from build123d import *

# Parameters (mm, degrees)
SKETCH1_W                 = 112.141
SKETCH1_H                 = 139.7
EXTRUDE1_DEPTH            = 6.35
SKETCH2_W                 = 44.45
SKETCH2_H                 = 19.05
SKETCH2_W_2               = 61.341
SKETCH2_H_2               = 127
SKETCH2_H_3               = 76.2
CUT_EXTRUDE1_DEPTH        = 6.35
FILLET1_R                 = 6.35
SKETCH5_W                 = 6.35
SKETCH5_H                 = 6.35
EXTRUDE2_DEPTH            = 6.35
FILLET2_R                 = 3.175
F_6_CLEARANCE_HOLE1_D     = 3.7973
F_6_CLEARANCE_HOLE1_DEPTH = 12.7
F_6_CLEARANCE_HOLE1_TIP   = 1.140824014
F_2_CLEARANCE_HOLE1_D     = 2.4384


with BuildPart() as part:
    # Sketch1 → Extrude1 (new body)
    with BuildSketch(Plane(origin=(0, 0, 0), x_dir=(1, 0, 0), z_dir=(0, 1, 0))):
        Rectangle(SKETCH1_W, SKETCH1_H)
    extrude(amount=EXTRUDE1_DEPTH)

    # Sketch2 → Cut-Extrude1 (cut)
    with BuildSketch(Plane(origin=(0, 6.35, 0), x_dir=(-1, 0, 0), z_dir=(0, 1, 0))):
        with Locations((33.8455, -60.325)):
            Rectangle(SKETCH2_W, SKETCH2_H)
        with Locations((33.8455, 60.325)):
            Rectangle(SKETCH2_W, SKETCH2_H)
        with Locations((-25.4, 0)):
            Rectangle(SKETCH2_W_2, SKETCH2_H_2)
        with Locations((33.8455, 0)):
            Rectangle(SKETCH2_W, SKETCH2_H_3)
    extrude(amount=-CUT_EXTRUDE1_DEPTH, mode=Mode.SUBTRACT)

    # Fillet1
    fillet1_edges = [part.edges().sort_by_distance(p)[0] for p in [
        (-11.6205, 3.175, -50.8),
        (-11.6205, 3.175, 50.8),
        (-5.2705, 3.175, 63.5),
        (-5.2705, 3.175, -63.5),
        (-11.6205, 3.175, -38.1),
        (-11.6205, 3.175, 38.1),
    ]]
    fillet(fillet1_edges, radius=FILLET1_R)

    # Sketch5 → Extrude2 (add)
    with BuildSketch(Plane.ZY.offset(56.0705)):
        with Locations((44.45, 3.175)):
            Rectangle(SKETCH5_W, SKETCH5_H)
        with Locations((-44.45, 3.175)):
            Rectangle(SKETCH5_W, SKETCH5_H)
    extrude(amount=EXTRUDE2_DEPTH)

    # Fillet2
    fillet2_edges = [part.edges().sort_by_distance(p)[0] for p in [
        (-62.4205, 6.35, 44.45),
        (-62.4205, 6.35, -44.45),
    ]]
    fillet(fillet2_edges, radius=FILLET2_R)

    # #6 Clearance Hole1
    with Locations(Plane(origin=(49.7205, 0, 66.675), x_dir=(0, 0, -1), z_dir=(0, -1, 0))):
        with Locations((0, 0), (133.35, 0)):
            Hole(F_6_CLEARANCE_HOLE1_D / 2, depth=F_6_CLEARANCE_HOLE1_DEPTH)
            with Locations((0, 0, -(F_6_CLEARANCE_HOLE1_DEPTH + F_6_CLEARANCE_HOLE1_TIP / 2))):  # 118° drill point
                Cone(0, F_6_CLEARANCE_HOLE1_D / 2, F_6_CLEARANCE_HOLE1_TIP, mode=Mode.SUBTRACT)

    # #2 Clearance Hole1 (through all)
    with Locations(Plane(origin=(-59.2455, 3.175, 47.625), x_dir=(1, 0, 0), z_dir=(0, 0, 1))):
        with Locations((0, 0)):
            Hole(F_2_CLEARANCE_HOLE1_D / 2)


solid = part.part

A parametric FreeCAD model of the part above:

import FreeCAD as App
import Part
import Sketcher
from FreeCAD import Vector
Q = App.Units.Quantity


def edges_at(feature, points):
    """Names of the edges that pass closest to the given points."""
    edges = feature.Shape.Edges
    near = lambda p: min(range(len(edges)), key=lambda i: edges[i].distToShape(Part.Vertex(*p))[0])
    return sorted({f"Edge{near(p) + 1}" for p in points})


def add_polygon(sketch, points):
    """Adds a closed chain of lines whose ends are joined by coincident constraints."""
    first, n = sketch.GeometryCount, len(points)
    for a, b in zip(points, points[1:] + points[:1]):
        sketch.addGeometry(Part.LineSegment(App.Vector(*a, 0), App.Vector(*b, 0)), False)
    for i in range(n):
        sketch.addConstraint(Sketcher.Constraint("Coincident", first + i, 2, first + (i + 1) % n, 1))

doc = App.newDocument("Part")
params = doc.addObject("Spreadsheet::Sheet", "Params")
for row, (alias, value) in enumerate([
    ("sketch1_height", "5.5 in"),
    ("sketch1_width", "4.415 in"),
    ("pad1_length", "0.25 in"),
    ("sketch2_height", "5 in"),
    ("sketch2_height2", "3 in"),
    ("sketch2_width", "1.75 in"),
    ("sketch2_height3", "0.75 in"),
    ("sketch2_width2", "2.415 in"),
    ("pocket1_length", "0.25 in"),
    ("fillet_radius", "0.25 in"),
    ("sketch3_width", "0.25 in"),
    ("pad2_length", "0.25 in"),
    ("fillet2_radius", "0.125 in"),
    ("hole_diameter", "0.1495 in"),
    ("hole_depth", "0.5 in"),
    ("sketch5_diameter", "0.096 in"),
    ("hole2_diameter", "0.096 in"),
], start=1):
    params.set(f"A{row}", alias)
    params.set(f"B{row}", "=" + value)
    params.setAlias(f"B{row}", alias)

body = doc.addObject("PartDesign::Body", "Body")

sketch1 = body.newObject("Sketcher::SketchObject", "Sketch")
sketch1.AttachmentSupport = (doc.getObject("XZ_Plane"), [""])
sketch1.MapMode = "FlatFace"
add_polygon(sketch1, [(-56, -70), (-56, 70), (56, 70), (56, -70)])
sketch1.addConstraint([
    Sketcher.Constraint("Vertical", 0),
    Sketcher.Constraint("Horizontal", 1),
    Sketcher.Constraint("Vertical", 2),
    Sketcher.Constraint("Horizontal", 3),
    Sketcher.Constraint("Symmetric", 0, 2, 2, 2, -1, 1),
    Sketcher.Constraint("DistanceY", 0, 1, 0, 2, Q("5.5 in")),
    Sketcher.Constraint("DistanceX", 1, 1, 1, 2, Q("4.415 in")),
])
sketch1.setExpression("Constraints[9]", "Params.sketch1_height")
sketch1.setExpression("Constraints[10]", "Params.sketch1_width")
pad1 = body.newObject("PartDesign::Pad", "Pad")
pad1.Profile = sketch1
pad1.setExpression("Length", "Params.pad1_length")
pad1.Reversed = True

sketch2 = body.newObject("Sketcher::SketchObject", "Sketch001")
sketch2.AttachmentSupport = (doc.getObject("XZ_Plane"), [""])
sketch2.MapMode = "FlatFace"
sketch2.AttachmentOffset = App.Placement(Vector(0, 0, -0.25 * 25.4), App.Rotation())
add_polygon(sketch2, [(-12, -51), (-12, -70), (-56, -70), (-56, -51)])
add_polygon(sketch2, [(-12, 70), (-12, 51), (-56, 51), (-56, 70)])
add_polygon(sketch2, [(56, 64), (56, -64), (-5, -64), (-5, 64)])
add_polygon(sketch2, [(-12, 38), (-12, -38), (-56, -38), (-56, 38)])
sketch2.addConstraint([
    Sketcher.Constraint("Vertical", 0),
    Sketcher.Constraint("Horizontal", 1),
    Sketcher.Constraint("Vertical", 2),
    Sketcher.Constraint("Horizontal", 3),
    Sketcher.Constraint("Vertical", 4),
    Sketcher.Constraint("Horizontal", 5),
    Sketcher.Constraint("Vertical", 6),
    Sketcher.Constraint("Horizontal", 7),
    Sketcher.Constraint("Vertical", 8),
    Sketcher.Constraint("Horizontal", 9),
    Sketcher.Constraint("Vertical", 10),
    Sketcher.Constraint("Horizontal", 11),
    Sketcher.Constraint("Vertical", 12),
    Sketcher.Constraint("Horizontal", 13),
    Sketcher.Constraint("Vertical", 14),
    Sketcher.Constraint("Horizontal", 15),
    Sketcher.Constraint("Symmetric", 3, 2, 4, 2, -1),
    Sketcher.Constraint("Symmetric", 1, 2, 6, 2, -1),
    Sketcher.Constraint("Vertical", 7, 2, 12, 2),
    Sketcher.Constraint("Vertical", 6, 2, 13, 2),
    Sketcher.Constraint("DistanceY", 8, 2, 8, 1, Q("5 in")),
    Sketcher.Constraint("DistanceY", 12, 2, 12, 1, Q("3 in")),
    Sketcher.Constraint("DistanceY", 2, 2, -1, 1, Q("2 in")),
    Sketcher.Constraint("DistanceX", 1, 2, 9, 2, Q("2 in")),
    Sketcher.Constraint("DistanceY", 9, 2, 12, 2, Q("1 in")),
    Sketcher.Constraint("DistanceX", 1, 2, 1, 1, Q("1.75 in")),
    Sketcher.Constraint("DistanceY", 0, 2, 0, 1, Q("0.75 in")),
    Sketcher.Constraint("DistanceY", 8, 2, -1, 1, Q("2.5 in")),
    Sketcher.Constraint("DistanceX", 9, 2, 9, 1, Q("2.415 in")),
    Sketcher.Constraint("DistanceX", 0, 2, -1, 1, Q("0.4575 in")),
])
sketch2.setExpression("Constraints[36]", "Params.sketch2_height")
sketch2.setExpression("Constraints[37]", "Params.sketch2_height2")
sketch2.setExpression("Constraints[41]", "Params.sketch2_width")
sketch2.setExpression("Constraints[42]", "Params.sketch2_height3")
sketch2.setExpression("Constraints[44]", "Params.sketch2_width2")
pocket1 = body.newObject("PartDesign::Pocket", "Pocket")
pocket1.Profile = sketch2
pocket1.setExpression("Length", "Params.pocket1_length")
pocket1.Reversed = True
doc.recompute()

fillet = body.newObject("PartDesign::Fillet", "Fillet")
fillet.Base = (pocket1, edges_at(pocket1, [
    (-11.62, 3.175, -50.8),
    (-11.62, 3.175, 50.8),
    (-5.271, 3.175, 63.5),
    (-5.271, 3.175, -63.5),
    (-11.62, 3.175, -38.1),
    (-11.62, 3.175, 38.1),
]))
fillet.setExpression("Radius", "Params.fillet_radius")

sketch3 = body.newObject("Sketcher::SketchObject", "Sketch002")
sketch3.AttachmentSupport = (doc.getObject("YZ_Plane"), [""])
sketch3.MapMode = "FlatFace"
sketch3.AttachmentOffset = App.Placement(Vector(0, 0, -2.2075 * 25.4), App.Rotation())
add_polygon(sketch3, [(6, 41), (0, 41), (0, 48), (6, 48)])
add_polygon(sketch3, [(6, -48), (0, -48), (0, -41), (6, -41)])
sketch3.addConstraint([
    Sketcher.Constraint("Horizontal", 0),
    Sketcher.Constraint("Vertical", 1),
    Sketcher.Constraint("Horizontal", 2),
    Sketcher.Constraint("Vertical", 3),
    Sketcher.Constraint("Horizontal", 4),
    Sketcher.Constraint("Vertical", 5),
    Sketcher.Constraint("Horizontal", 6),
    Sketcher.Constraint("Vertical", 7),
    Sketcher.Constraint("Symmetric", 1, 2, 4, 2, -1, 1),
    Sketcher.Constraint("Symmetric", 0, 2, 5, 2, -1),
    Sketcher.Constraint("Vertical", 3, 2, 6, 2),
    Sketcher.Constraint("Equal", 6, 1),
    Sketcher.Constraint("DistanceX", 0, 2, 0, 1, Q("0.25 in")),
    Sketcher.Constraint("DistanceY", 4, 2, 0, 2, Q("3.5 in")),
])
sketch3.setExpression("Constraints[20]", "Params.sketch3_width")
pad2 = body.newObject("PartDesign::Pad", "Pad001")
pad2.Profile = sketch3
pad2.setExpression("Length", "Params.pad2_length")
pad2.Reversed = True
doc.recompute()

fillet2 = body.newObject("PartDesign::Fillet", "Fillet001")
fillet2.Base = (pad2, edges_at(pad2, [(-62.42, 6.35, 44.45), (-62.42, 6.35, -44.45)]))
fillet2.setExpression("Radius", "Params.fillet2_radius")

sketch4 = body.newObject("Sketcher::SketchObject", "Sketch003")
sketch4.AttachmentSupport = (doc.getObject("XZ_Plane"), [""])
sketch4.MapMode = "FlatFace"
sketch4.addGeometry([
    Part.Circle(Vector(49.7, 66.7, 0), Vector(0, 0, 1), 1.9),
    Part.Circle(Vector(49.7, -66.7, 0), Vector(0, 0, 1), 1.9),
], False)
sketch4.addConstraint([
    Sketcher.Constraint("Equal", 0, 1),
    Sketcher.Constraint("Symmetric", 0, 3, 1, 3, -1),
    Sketcher.Constraint("Diameter", 0, Q("0.1495 in")),
    Sketcher.Constraint("DistanceY", 1, 3, 0, 3, Q("5.25 in")),
    Sketcher.Constraint("DistanceX", -1, 1, 0, 3, Q("1.9575 in")),
])
doc.recompute()
hole = body.newObject("PartDesign::Hole", "Hole")
hole.Profile = sketch4
hole.ThreadType = "None"
hole.setExpression("Diameter", "Params.hole_diameter")
hole.DepthType = "Dimension"
hole.setExpression("Depth", "Params.hole_depth")
hole.DrillPoint = "Angled"
hole.DrillPointAngle = 118

sketch5 = body.newObject("Sketcher::SketchObject", "Sketch004")
sketch5.AttachmentSupport = (doc.getObject("XY_Plane"), [""])
sketch5.MapMode = "FlatFace"
sketch5.AttachmentOffset = App.Placement(Vector(0, 0, 1.875 * 25.4), App.Rotation())
sketch5.addGeometry(Part.Circle(Vector(-59.2, 3.2, 0), Vector(0, 0, 1), 1.2), False)
sketch5.addConstraint([
    Sketcher.Constraint("Diameter", 0, Q("0.096 in")),
    Sketcher.Constraint("DistanceY", -1, 1, 0, 3, Q("0.125 in")),
    Sketcher.Constraint("DistanceX", 0, 3, -1, 1, Q("2.3325 in")),
])
sketch5.setExpression("Constraints[0]", "Params.sketch5_diameter")
doc.recompute()
hole2 = body.newObject("PartDesign::Hole", "Hole001")
hole2.Profile = sketch5
hole2.ThreadType = "None"
hole2.setExpression("Diameter", "Params.hole2_diameter")
hole2.DepthType = "ThroughAll"

doc.recompute()
